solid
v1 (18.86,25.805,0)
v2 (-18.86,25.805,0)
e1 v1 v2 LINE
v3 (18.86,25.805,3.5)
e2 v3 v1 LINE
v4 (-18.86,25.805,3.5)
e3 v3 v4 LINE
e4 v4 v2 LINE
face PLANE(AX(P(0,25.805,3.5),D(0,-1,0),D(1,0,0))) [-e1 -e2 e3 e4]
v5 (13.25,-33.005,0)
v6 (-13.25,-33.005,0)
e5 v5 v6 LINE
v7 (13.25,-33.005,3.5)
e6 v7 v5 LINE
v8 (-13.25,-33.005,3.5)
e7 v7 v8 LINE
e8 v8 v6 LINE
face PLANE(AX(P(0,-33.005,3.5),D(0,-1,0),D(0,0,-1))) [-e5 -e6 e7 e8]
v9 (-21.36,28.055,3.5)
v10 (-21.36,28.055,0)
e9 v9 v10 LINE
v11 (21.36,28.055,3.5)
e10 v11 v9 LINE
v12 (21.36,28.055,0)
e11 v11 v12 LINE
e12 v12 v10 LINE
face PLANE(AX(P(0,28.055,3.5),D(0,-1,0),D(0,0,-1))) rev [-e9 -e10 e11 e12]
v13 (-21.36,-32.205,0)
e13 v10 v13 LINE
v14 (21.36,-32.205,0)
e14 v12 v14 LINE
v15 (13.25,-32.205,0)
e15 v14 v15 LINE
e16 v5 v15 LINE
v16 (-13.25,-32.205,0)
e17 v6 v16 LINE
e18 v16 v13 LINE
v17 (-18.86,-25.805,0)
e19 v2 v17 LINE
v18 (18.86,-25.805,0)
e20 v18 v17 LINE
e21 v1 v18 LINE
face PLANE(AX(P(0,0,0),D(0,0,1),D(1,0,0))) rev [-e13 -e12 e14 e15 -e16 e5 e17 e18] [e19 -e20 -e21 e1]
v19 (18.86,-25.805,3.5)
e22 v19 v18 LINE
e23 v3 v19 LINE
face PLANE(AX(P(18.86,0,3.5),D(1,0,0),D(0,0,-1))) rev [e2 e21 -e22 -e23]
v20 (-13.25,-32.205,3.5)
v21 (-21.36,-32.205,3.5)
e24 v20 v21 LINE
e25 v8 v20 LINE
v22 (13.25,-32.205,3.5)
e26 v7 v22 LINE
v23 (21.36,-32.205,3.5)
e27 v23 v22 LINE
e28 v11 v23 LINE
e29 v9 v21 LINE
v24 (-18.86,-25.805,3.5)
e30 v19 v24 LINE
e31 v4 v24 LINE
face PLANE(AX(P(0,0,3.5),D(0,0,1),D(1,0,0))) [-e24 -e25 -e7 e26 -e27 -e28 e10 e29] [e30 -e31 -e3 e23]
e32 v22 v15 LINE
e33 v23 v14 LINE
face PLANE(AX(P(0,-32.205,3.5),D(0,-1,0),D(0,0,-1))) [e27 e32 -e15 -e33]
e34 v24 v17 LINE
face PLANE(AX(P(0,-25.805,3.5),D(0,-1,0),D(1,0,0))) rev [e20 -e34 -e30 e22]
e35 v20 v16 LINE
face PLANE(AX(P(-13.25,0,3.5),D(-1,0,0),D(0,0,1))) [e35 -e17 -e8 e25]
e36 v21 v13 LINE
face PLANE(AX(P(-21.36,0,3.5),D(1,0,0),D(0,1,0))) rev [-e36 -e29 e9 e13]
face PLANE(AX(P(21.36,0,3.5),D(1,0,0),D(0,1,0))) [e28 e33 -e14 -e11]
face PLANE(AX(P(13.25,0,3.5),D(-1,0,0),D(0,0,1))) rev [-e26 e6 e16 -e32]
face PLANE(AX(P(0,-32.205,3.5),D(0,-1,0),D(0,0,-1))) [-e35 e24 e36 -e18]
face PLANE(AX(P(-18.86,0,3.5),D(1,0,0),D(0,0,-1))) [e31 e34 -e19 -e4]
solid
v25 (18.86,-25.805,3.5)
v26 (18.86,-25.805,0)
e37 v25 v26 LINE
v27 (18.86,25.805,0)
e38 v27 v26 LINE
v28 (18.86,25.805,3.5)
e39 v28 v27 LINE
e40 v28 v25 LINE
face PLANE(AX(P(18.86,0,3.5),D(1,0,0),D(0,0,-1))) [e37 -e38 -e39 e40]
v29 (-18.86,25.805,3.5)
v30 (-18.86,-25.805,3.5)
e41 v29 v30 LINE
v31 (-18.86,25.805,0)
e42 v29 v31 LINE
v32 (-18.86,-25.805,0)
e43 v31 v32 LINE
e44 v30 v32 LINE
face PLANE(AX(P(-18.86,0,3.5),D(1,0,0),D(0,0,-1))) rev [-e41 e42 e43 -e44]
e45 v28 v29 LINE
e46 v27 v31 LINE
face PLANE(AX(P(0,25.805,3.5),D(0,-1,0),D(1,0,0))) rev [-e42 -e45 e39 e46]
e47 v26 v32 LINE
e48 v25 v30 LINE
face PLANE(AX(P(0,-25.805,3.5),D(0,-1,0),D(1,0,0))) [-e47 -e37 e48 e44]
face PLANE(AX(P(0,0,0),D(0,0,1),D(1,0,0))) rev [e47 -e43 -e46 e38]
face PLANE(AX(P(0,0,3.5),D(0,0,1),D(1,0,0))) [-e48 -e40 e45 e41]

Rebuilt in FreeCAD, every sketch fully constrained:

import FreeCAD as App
import Part
import Sketcher
from FreeCAD import Vector
Q = App.Units.Quantity


def add_polygon(sketch, points):
    """Adds a closed chain of lines whose ends are joined by coincident constraints."""
    first, n = sketch.GeometryCount, len(points)
    for a, b in zip(points, points[1:] + points[:1]):
        sketch.addGeometry(Part.LineSegment(App.Vector(*a, 0), App.Vector(*b, 0)), False)
    for i in range(n):
        sketch.addConstraint(Sketcher.Constraint("Coincident", first + i, 2, first + (i + 1) % n, 1))

doc = App.newDocument("Part")
body = doc.addObject("PartDesign::Body", "Body")

# Sketch on XY plane
sketch1 = body.newObject("Sketcher::SketchObject", "Sketch")
sketch1.AttachmentSupport = (doc.getObject("XY_Plane"), [""])
sketch1.MapMode = "FlatFace"
add_polygon(sketch1, [(-21.4, 28.1), (-21.4, -32.2), (-13.2, -32.2), (-13.2, -33), (13.2, -33), (13.2, -32.2), (21.4, -32.2), (21.4, 28.1)])  # lines 0-7
add_polygon(sketch1, [(18.9, -25.8), (-18.9, -25.8), (-18.9, 25.8), (18.9, 25.8)])  # lines 8-11
sketch1.addConstraint([
    Sketcher.Constraint("Vertical", 0),
    Sketcher.Constraint("Horizontal", 1),
    Sketcher.Constraint("Vertical", 2),
    Sketcher.Constraint("Horizontal", 3),
    Sketcher.Constraint("Vertical", 4),
    Sketcher.Constraint("Horizontal", 5),
    Sketcher.Constraint("Vertical", 6),
    Sketcher.Constraint("Horizontal", 7),
    Sketcher.Constraint("Horizontal", 8),
    Sketcher.Constraint("Vertical", 9),
    Sketcher.Constraint("Horizontal", 10),
    Sketcher.Constraint("Vertical", 11),
    Sketcher.Constraint("Symmetric", 8, 2, 10, 2, -1, 1),
    Sketcher.Constraint("Symmetric", 1, 2, 4, 2, -2),
    Sketcher.Constraint("Equal", 1, 5),
    Sketcher.Constraint("DistanceX", 3, 1, 3, 2, Q("26.5 mm")),
    Sketcher.Constraint("DistanceY", 2, 2, 2, 1, Q("0.8 mm")),
    Sketcher.Constraint("DistanceX", 1, 1, 1, 2, Q("8.11 mm")),
    Sketcher.Constraint("DistanceX", 8, 2, 8, 1, Q("37.72 mm")),
    Sketcher.Constraint("DistanceY", 0, 2, 0, 1, Q("60.26 mm")),
    Sketcher.Constraint("DistanceY", 9, 1, 9, 2, Q("51.61 mm")),
    Sketcher.Constraint("DistanceY", 0, 2, 8, 2, Q("6.4 mm")),
])
pad1 = body.newObject("PartDesign::Pad", "Pad")
pad1.Profile = sketch1
pad1.Length = 3.5
body2 = doc.addObject("PartDesign::Body", "Body001")

# Sketch on XY plane
sketch2 = body2.newObject("Sketcher::SketchObject", "Sketch001")
sketch2.AttachmentSupport = (doc.getObject("XY_Plane001"), [""])
sketch2.MapMode = "FlatFace"
add_polygon(sketch2, [(-19, 26), (-19, -26), (19, -26), (19, 26)])  # lines 0-3
sketch2.addConstraint([
    Sketcher.Constraint("Vertical", 0),
    Sketcher.Constraint("Horizontal", 1),
    Sketcher.Constraint("Vertical", 2),
    Sketcher.Constraint("Horizontal", 3),
    Sketcher.Constraint("Symmetric", 0, 2, 2, 2, -1, 1),
    Sketcher.Constraint("DistanceX", 1, 1, 1, 2, Q("37.72 mm")),
    Sketcher.Constraint("DistanceY", 0, 2, 0, 1, Q("51.61 mm")),
])
pad2 = body2.newObject("PartDesign::Pad", "Pad001")
pad2.Profile = sketch2
pad2.Length = 3.5

doc.recompute()
